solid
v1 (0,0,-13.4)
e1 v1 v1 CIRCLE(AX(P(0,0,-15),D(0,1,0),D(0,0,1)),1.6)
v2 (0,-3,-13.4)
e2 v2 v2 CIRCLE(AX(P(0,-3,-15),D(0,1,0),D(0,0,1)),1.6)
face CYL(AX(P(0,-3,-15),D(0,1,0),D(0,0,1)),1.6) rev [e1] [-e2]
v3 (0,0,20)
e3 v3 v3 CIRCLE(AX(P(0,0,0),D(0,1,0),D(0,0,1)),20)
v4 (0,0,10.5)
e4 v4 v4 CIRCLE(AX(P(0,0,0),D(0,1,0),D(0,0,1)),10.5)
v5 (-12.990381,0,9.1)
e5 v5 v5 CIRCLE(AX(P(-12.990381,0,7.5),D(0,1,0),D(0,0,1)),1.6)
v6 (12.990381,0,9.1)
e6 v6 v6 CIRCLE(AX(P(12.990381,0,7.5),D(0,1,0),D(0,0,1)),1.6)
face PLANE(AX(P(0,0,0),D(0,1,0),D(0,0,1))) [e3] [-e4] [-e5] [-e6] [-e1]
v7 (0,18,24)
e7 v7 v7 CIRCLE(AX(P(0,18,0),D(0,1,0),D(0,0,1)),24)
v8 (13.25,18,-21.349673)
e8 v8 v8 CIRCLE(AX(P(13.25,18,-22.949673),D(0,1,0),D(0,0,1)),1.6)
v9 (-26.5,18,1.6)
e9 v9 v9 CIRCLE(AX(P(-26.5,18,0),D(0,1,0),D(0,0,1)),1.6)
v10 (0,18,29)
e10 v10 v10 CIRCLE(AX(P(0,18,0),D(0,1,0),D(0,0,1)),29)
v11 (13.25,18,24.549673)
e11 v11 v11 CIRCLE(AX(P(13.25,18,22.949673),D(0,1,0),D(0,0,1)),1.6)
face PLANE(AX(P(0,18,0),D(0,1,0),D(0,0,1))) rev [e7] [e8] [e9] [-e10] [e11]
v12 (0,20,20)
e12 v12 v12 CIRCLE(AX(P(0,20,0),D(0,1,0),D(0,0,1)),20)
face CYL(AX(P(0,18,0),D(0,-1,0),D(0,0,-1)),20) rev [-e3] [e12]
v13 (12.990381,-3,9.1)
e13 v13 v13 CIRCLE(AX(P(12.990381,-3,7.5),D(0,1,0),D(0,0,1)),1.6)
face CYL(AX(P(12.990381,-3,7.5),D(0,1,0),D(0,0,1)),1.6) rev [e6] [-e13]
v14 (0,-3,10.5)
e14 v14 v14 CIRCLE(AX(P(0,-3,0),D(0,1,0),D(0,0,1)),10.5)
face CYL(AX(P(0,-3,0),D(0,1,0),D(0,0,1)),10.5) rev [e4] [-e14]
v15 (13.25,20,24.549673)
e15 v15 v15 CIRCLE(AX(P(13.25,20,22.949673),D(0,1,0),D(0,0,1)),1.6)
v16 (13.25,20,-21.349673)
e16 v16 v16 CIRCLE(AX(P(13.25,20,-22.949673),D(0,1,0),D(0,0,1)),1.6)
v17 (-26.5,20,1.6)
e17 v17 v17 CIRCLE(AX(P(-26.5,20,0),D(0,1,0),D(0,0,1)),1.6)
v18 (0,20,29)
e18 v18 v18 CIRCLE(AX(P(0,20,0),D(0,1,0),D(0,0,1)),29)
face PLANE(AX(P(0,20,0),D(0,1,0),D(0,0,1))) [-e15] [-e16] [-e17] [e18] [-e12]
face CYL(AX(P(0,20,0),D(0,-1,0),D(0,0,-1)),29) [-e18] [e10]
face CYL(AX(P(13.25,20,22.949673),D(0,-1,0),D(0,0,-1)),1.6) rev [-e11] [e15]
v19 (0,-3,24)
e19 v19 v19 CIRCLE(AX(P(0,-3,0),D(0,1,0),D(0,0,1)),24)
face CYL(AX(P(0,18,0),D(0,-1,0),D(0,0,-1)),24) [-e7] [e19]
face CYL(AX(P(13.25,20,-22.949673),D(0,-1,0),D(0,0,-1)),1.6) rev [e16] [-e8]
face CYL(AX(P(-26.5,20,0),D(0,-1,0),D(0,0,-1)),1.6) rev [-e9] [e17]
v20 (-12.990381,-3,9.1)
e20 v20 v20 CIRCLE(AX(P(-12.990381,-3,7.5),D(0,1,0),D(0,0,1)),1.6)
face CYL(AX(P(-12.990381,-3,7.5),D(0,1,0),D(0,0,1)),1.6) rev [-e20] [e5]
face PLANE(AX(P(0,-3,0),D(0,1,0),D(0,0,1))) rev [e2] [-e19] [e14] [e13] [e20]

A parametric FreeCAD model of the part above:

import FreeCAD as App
import Part
import Sketcher
Q = App.Units.Quantity

doc = App.newDocument("Part")
body = doc.addObject("PartDesign::Body", "Body")

# Sketch on XZ plane
sketch1 = body.newObject("Sketcher::SketchObject", "Sketch")
sketch1.AttachmentSupport = (doc.getObject("XZ_Plane"), [""])
sketch1.MapMode = "FlatFace"
sketch1.addGeometry([
    Part.Circle(App.Vector(0, 0, 0), App.Vector(0, 0, 1), 24),
    Part.Circle(App.Vector(0, 0, 0), App.Vector(0, 0, 1), 20),
], False)
sketch1.addConstraint([
    Sketcher.Constraint("Coincident", 0, 3, -1, 1),
    Sketcher.Constraint("Coincident", 1, 3, -1, 1),
    Sketcher.Constraint("Diameter", 0, Q("48 mm")),
    Sketcher.Constraint("Diameter", 1, Q("40 mm")),
])
pad1 = body.newObject("PartDesign::Pad", "Pad")
pad1.Profile = sketch1
pad1.Length = 18
pad1.Reversed = True

# Sketch on XZ plane
sketch2 = body.newObject("Sketcher::SketchObject", "Sketch001")
sketch2.AttachmentSupport = (doc.getObject("XZ_Plane"), [""])
sketch2.MapMode = "FlatFace"
sketch2.AttachmentOffset = App.Placement(App.Vector(0, 0, 3), App.Rotation())
sketch2.addGeometry([
    Part.Circle(App.Vector(0, 0, 0), App.Vector(0, 0, 1), 24),  # 0
    Part.Circle(App.Vector(0, -15, 0), App.Vector(0, 0, 1), 1.6),  # 1
    Part.Circle(App.Vector(-13, 7.5, 0), App.Vector(0, 0, 1), 1.6),  # 2
    Part.Circle(App.Vector(0, 0, 0), App.Vector(0, 0, 1), 10.5),  # 3
    Part.Circle(App.Vector(13, 7.5, 0), App.Vector(0, 0, 1), 1.6),  # 4
], False)
sketch2.addConstraint([
    Sketcher.Constraint("Coincident", 0, 3, -1, 1),
    Sketcher.Constraint("Coincident", 3, 3, -1, 1),
    Sketcher.Constraint("Equal", 1, 2),
    Sketcher.Constraint("Equal", 2, 4),
    Sketcher.Constraint("Symmetric", 2, 3, 4, 3, -2),
    Sketcher.Constraint("PointOnObject", 1, 3, -2),
    Sketcher.Constraint("Diameter", 0, Q("48 mm")),
    Sketcher.Constraint("Diameter", 3, Q("21 mm")),
    Sketcher.Constraint("Diameter", 1, Q("3.2 mm")),
    Sketcher.Constraint("DistanceY", 1, 3, -1, 1, Q("15 mm")),
    Sketcher.Constraint("DistanceY", -1, 1, 2, 3, Q("7.5 mm")),
    Sketcher.Constraint("DistanceX", 2, 3, -1, 1, Q("12.990381 mm")),
])
pad2 = body.newObject("PartDesign::Pad", "Pad001")
pad2.Profile = sketch2
pad2.Length = 3
pad2.Reversed = True

# Sketch on XZ plane
sketch3 = body.newObject("Sketcher::SketchObject", "Sketch002")
sketch3.AttachmentSupport = (doc.getObject("XZ_Plane"), [""])
sketch3.MapMode = "FlatFace"
sketch3.AttachmentOffset = App.Placement(App.Vector(0, 0, -18), App.Rotation())
sketch3.addGeometry([
    Part.Circle(App.Vector(0, 0, 0), App.Vector(0, 0, 1), 29),  # 0
    Part.Circle(App.Vector(-26.5, 0, 0), App.Vector(0, 0, 1), 1.6),  # 1
    Part.Circle(App.Vector(13.2, -22.9, 0), App.Vector(0, 0, 1), 1.6),  # 2
    Part.Circle(App.Vector(0, 0, 0), App.Vector(0, 0, 1), 20),  # 3
    Part.Circle(App.Vector(13.2, 22.9, 0), App.Vector(0, 0, 1), 1.6),  # 4
], False)
sketch3.addConstraint([
    Sketcher.Constraint("Coincident", 0, 3, -1, 1),
    Sketcher.Constraint("Coincident", 3, 3, -1, 1),
    Sketcher.Constraint("Equal", 1, 2),
    Sketcher.Constraint("Equal", 2, 4),
    Sketcher.Constraint("Symmetric", 2, 3, 4, 3, -1),
    Sketcher.Constraint("PointOnObject", 1, 3, -1),
    Sketcher.Constraint("Diameter", 0, Q("58 mm")),
    Sketcher.Constraint("Diameter", 3, Q("40 mm")),
    Sketcher.Constraint("Diameter", 1, Q("3.2 mm")),
    Sketcher.Constraint("DistanceX", 1, 3, -1, 1, Q("26.5 mm")),
    Sketcher.Constraint("DistanceX", -1, 1, 2, 3, Q("13.25 mm")),
    Sketcher.Constraint("DistanceY", 2, 3, -1, 1, Q("22.949673 mm")),
])
pad3 = body.newObject("PartDesign::Pad", "Pad002")
pad3.Profile = sketch3
pad3.Length = 2
pad3.Reversed = True

doc.recompute()
